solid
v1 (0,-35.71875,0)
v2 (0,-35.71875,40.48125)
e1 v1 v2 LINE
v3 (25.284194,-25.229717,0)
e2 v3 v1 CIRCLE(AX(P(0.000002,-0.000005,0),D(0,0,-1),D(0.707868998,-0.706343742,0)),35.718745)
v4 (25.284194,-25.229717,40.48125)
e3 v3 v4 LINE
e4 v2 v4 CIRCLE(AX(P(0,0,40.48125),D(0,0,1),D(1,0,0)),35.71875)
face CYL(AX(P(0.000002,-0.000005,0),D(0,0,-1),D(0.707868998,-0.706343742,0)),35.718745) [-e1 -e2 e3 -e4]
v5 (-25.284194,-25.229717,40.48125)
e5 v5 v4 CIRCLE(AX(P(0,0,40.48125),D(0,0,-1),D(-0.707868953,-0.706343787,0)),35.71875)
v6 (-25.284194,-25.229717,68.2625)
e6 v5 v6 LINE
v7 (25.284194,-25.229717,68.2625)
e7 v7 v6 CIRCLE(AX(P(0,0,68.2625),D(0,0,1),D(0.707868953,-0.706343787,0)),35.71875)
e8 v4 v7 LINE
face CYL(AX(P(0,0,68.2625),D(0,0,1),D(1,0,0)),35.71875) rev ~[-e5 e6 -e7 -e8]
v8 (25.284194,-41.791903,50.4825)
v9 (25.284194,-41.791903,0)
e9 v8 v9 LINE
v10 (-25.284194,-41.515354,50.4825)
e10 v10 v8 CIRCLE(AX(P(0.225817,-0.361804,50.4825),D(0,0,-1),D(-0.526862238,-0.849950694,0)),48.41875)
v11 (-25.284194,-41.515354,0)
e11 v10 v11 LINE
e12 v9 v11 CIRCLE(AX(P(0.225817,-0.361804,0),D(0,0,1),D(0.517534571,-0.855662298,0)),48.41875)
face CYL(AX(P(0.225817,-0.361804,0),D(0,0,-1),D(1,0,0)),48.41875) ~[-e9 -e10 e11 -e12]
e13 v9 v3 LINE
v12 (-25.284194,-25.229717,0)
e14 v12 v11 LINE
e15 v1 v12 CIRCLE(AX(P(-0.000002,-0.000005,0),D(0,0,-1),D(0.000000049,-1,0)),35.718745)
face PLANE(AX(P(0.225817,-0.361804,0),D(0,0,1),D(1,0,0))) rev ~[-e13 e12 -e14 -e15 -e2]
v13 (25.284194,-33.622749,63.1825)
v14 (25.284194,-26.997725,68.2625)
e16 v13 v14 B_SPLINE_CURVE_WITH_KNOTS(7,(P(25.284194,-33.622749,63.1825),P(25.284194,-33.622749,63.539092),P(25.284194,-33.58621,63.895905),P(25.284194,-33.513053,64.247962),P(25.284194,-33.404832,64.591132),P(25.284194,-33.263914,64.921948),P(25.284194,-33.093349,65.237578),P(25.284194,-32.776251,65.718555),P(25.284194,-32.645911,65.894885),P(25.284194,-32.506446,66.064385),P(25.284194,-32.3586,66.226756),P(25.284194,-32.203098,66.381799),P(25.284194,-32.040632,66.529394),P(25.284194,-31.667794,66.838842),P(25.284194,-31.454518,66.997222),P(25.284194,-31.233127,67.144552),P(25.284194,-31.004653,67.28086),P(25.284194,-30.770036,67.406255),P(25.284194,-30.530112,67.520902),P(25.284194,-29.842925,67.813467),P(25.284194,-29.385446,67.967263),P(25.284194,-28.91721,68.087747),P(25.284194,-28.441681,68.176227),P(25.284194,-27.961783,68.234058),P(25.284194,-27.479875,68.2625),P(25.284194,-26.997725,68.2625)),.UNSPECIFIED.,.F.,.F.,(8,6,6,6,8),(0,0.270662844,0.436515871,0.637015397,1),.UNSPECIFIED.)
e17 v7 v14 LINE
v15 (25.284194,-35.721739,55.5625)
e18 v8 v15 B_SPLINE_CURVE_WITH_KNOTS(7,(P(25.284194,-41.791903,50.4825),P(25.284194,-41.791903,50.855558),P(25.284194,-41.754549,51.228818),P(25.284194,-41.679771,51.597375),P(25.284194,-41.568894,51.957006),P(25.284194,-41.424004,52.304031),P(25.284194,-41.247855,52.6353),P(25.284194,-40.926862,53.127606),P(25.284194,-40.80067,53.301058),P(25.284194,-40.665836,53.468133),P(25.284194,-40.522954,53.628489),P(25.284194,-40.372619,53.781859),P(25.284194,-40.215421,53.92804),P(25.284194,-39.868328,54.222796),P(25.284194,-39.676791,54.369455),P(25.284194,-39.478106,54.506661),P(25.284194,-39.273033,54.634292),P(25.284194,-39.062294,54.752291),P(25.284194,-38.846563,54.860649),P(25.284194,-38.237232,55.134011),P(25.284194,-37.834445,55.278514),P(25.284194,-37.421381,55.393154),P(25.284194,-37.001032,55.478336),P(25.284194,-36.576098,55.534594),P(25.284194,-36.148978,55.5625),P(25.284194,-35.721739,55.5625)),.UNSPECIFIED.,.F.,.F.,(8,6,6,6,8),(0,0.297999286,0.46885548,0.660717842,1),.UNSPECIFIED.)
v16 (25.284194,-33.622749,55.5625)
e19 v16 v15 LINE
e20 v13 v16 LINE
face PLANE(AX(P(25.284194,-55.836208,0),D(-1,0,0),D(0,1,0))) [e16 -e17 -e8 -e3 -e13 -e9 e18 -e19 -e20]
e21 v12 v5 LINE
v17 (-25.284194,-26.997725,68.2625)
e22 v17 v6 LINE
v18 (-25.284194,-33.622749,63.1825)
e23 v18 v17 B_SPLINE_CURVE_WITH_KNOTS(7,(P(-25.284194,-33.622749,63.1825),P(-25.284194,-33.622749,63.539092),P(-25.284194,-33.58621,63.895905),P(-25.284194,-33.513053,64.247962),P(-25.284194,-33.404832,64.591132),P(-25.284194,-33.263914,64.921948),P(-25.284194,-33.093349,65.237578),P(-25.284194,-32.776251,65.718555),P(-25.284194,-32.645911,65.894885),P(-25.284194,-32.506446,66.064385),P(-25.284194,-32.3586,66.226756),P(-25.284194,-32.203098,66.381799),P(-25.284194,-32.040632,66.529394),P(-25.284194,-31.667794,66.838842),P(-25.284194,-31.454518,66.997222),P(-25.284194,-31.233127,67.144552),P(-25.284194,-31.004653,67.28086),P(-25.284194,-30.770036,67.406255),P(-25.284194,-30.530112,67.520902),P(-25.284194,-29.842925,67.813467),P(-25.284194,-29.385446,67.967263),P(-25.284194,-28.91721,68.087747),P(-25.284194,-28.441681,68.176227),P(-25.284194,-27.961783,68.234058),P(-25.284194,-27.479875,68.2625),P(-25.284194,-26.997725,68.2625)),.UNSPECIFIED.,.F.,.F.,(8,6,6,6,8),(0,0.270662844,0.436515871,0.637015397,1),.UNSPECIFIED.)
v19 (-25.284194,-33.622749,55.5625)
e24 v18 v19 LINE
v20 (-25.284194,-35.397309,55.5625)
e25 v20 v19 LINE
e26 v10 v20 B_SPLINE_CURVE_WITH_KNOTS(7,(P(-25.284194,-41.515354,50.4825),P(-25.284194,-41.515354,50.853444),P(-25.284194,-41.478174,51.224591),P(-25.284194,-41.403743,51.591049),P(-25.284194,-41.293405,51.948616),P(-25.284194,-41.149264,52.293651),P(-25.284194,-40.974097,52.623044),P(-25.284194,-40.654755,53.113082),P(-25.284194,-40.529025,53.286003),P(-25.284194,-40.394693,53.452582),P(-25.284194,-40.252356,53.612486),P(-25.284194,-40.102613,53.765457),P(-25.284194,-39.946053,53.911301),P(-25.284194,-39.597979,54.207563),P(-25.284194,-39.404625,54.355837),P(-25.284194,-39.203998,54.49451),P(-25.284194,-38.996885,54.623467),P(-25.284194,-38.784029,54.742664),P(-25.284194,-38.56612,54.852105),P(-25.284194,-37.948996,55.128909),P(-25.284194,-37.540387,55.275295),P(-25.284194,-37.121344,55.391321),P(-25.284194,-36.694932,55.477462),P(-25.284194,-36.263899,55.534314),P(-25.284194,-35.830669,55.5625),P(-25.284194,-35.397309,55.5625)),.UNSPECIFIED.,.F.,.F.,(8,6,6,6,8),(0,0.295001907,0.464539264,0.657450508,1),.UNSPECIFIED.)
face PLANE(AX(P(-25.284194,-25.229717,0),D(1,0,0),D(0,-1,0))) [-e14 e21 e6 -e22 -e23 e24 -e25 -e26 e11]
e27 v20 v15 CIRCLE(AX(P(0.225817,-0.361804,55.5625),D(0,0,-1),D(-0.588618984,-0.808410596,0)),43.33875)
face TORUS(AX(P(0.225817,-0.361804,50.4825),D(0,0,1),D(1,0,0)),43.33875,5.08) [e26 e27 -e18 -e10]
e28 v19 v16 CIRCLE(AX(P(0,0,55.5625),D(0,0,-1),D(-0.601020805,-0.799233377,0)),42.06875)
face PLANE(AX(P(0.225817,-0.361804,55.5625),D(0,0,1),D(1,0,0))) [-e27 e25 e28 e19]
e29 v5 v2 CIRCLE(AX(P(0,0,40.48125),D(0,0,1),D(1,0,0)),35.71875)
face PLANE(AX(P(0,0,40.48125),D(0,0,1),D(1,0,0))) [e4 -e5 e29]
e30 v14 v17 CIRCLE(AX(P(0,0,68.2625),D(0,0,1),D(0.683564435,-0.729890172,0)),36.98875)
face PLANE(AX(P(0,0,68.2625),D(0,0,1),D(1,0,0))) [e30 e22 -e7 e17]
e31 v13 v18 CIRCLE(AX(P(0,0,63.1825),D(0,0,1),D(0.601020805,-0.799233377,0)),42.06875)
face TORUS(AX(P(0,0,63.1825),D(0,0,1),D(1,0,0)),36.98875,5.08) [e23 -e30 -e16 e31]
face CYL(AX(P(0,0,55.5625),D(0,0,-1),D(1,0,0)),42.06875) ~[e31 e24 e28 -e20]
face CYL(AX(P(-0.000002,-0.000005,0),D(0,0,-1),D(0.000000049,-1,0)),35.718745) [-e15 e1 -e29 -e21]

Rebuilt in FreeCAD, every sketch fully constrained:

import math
import FreeCAD as App
import Part
import Sketcher
from FreeCAD import Vector
Q = App.Units.Quantity


def edges_at(feature, points):
    """Names of the edges that pass closest to the given points."""
    edges = feature.Shape.Edges
    near = lambda p: min(range(len(edges)), key=lambda i: edges[i].distToShape(Part.Vertex(*p))[0])
    return sorted({f"Edge{near(p) + 1}" for p in points})

doc = App.newDocument("Part")
params = doc.addObject("Spreadsheet::Sheet", "Params")
for row, (alias, value) in enumerate([
    ("sketch1_diameter", "3.8125 in"),
    ("pad1_length", "2.1875 in"),
    ("sketch2_diameter", "3.3125 in"),
    ("pad2_length", "0.5 in"),
    ("sketch3_diameter", "2.8125 in"),
    ("pocket1_length", "1.09375 in"),
    ("fillet_radius", "0.2 in"),
    ("pocket2_length", "3.94 in"),
], start=1):
    params.set(f"A{row}", alias)
    params.set(f"B{row}", "=" + value)
    params.setAlias(f"B{row}", alias)

body = doc.addObject("PartDesign::Body", "Body")

# Sketch on XY plane
sketch1 = doc.addObject("Sketcher::SketchObject", "Sketch")
body.addObject(sketch1)
sketch1.AttachmentSupport = (doc.XY_Plane, [""])
sketch1.MapMode = "FlatFace"
sketch1.addGeometry(Part.Circle(Vector(0.225817, -0.361804, 0), Vector(0, 0, 1), 48.41875), False)
sketch1.addConstraint(Sketcher.Constraint("Diameter", 0, Q("3.8125 in")))
sketch1.addConstraint(Sketcher.Constraint("DistanceX", -1, 1, 0, 3, Q("0.225817 mm")))
sketch1.addConstraint(Sketcher.Constraint("DistanceY", 0, 3, -1, 1, Q("0.361804 mm")))
sketch1.setExpression("Constraints[0]", "Params.sketch1_diameter")
pad1 = doc.addObject("PartDesign::Pad", "Pad")
body.addObject(pad1)
pad1.Profile = sketch1
pad1.setExpression("Length", "Params.pad1_length")

# Sketch on XY plane
sketch2 = doc.addObject("Sketcher::SketchObject", "Sketch001")
body.addObject(sketch2)
sketch2.AttachmentSupport = (doc.XY_Plane, [""])
sketch2.MapMode = "FlatFace"
sketch2.AttachmentOffset = App.Placement(Vector(0, 0, 2.1875 * 25.4), App.Rotation())
sketch2.addGeometry(Part.Circle(Vector(0, 0, 0), Vector(0, 0, 1), 42.06875), False)
sketch2.addConstraint(Sketcher.Constraint("Coincident", 0, 3, -1, 1))
sketch2.addConstraint(Sketcher.Constraint("Diameter", 0, Q("3.3125 in")))
sketch2.setExpression("Constraints[1]", "Params.sketch2_diameter")
pad2 = doc.addObject("PartDesign::Pad", "Pad001")
body.addObject(pad2)
pad2.Profile = sketch2
pad2.setExpression("Length", "Params.pad2_length")

# Sketch on XY plane
sketch3 = doc.addObject("Sketcher::SketchObject", "Sketch002")
body.addObject(sketch3)
sketch3.AttachmentSupport = (doc.XY_Plane, [""])
sketch3.MapMode = "FlatFace"
sketch3.AttachmentOffset = App.Placement(Vector(0, 0, 2.6875 * 25.4), App.Rotation())
sketch3.addGeometry(Part.Circle(Vector(0, 0, 0), Vector(0, 0, 1), 35.71875), False)
sketch3.addConstraint(Sketcher.Constraint("Coincident", 0, 3, -1, 1))
sketch3.addConstraint(Sketcher.Constraint("Diameter", 0, Q("2.8125 in")))
sketch3.setExpression("Constraints[1]", "Params.sketch3_diameter")
pocket1 = doc.addObject("PartDesign::Pocket", "Pocket")
body.addObject(pocket1)
pocket1.Profile = sketch3
pocket1.setExpression("Length", "Params.pocket1_length")
doc.recompute()

fillet = doc.addObject("PartDesign::Fillet", "Fillet")
body.addObject(fillet)
fillet.Base = (pocket1, edges_at(pocket1, [(-48.193, -0.362, 55.562), (-42.069, 0, 68.263)]))
fillet.setExpression("Radius", "Params.fillet_radius")

# Sketch on XY plane
sketch4 = doc.addObject("Sketcher::SketchObject", "Sketch003")
body.addObject(sketch4)
sketch4.AttachmentSupport = (doc.XY_Plane, [""])
sketch4.MapMode = "FlatFace"
sketch4.addGeometry(Part.LineSegment(Vector(25.284194, -55.836208, 0), Vector(25.284194, -25.229717, 0)), False)
sketch4.addGeometry(Part.ArcOfCircle(Part.Circle(Vector(0.000002, -0.000005, 0), Vector(0, 0, 1), 35.718745), math.radians(-90.000003), math.radians(-44.938205)), False)
sketch4.addGeometry(Part.ArcOfCircle(Part.Circle(Vector(-0.000002, -0.000005, 0), Vector(0, 0, 1), 35.718745), math.radians(-135.061795), math.radians(-89.999997)), False)
sketch4.addGeometry(Part.LineSegment(Vector(-25.284194, -25.229717, 0), Vector(-25.284194, -55.836208, 0)), False)
sketch4.addGeometry(Part.LineSegment(Vector(-25.284194, -55.836208, 0), Vector(25.284194, -55.836208, 0)), False)
sketch4.addConstraint(Sketcher.Constraint("Coincident", 0, 2, 1, 2))
sketch4.addConstraint(Sketcher.Constraint("Tangent", 1, 1, 2, 2))
sketch4.addConstraint(Sketcher.Constraint("Coincident", 2, 1, 3, 1))
sketch4.addConstraint(Sketcher.Constraint("Coincident", 3, 2, 4, 1))
sketch4.addConstraint(Sketcher.Constraint("Coincident", 4, 2, 0, 1))
sketch4.addConstraint(Sketcher.Constraint("Vertical", 0))
sketch4.addConstraint(Sketcher.Constraint("Vertical", 3))
sketch4.addConstraint(Sketcher.Constraint("Horizontal", 4))
sketch4.addConstraint(Sketcher.Constraint("Coincident", 1, 3, -1, 1))
sketch4.addConstraint(Sketcher.Constraint("Equal", 1, 2))
sketch4.addConstraint(Sketcher.Constraint("PointOnObject", 1, 1, -2))
sketch4.addConstraint(Sketcher.Constraint("Horizontal", 0, 2, 2, 1))
sketch4.addConstraint(Sketcher.Constraint("DistanceY", 1, 1, -1, 1, Q("1.40625 in")))
sketch4.addConstraint(Sketcher.Constraint("DistanceY", 0, 1, 0, 2, Q("30.606491 mm")))
sketch4.addConstraint(Sketcher.Constraint("DistanceX", 4, 1, 4, 2, Q("50.568388 mm")))
pocket2 = doc.addObject("PartDesign::Pocket", "Pocket001")
body.addObject(pocket2)
pocket2.Profile = sketch4
pocket2.setExpression("Length", "Params.pocket2_length")
pocket2.Reversed = True

doc.recompute()
